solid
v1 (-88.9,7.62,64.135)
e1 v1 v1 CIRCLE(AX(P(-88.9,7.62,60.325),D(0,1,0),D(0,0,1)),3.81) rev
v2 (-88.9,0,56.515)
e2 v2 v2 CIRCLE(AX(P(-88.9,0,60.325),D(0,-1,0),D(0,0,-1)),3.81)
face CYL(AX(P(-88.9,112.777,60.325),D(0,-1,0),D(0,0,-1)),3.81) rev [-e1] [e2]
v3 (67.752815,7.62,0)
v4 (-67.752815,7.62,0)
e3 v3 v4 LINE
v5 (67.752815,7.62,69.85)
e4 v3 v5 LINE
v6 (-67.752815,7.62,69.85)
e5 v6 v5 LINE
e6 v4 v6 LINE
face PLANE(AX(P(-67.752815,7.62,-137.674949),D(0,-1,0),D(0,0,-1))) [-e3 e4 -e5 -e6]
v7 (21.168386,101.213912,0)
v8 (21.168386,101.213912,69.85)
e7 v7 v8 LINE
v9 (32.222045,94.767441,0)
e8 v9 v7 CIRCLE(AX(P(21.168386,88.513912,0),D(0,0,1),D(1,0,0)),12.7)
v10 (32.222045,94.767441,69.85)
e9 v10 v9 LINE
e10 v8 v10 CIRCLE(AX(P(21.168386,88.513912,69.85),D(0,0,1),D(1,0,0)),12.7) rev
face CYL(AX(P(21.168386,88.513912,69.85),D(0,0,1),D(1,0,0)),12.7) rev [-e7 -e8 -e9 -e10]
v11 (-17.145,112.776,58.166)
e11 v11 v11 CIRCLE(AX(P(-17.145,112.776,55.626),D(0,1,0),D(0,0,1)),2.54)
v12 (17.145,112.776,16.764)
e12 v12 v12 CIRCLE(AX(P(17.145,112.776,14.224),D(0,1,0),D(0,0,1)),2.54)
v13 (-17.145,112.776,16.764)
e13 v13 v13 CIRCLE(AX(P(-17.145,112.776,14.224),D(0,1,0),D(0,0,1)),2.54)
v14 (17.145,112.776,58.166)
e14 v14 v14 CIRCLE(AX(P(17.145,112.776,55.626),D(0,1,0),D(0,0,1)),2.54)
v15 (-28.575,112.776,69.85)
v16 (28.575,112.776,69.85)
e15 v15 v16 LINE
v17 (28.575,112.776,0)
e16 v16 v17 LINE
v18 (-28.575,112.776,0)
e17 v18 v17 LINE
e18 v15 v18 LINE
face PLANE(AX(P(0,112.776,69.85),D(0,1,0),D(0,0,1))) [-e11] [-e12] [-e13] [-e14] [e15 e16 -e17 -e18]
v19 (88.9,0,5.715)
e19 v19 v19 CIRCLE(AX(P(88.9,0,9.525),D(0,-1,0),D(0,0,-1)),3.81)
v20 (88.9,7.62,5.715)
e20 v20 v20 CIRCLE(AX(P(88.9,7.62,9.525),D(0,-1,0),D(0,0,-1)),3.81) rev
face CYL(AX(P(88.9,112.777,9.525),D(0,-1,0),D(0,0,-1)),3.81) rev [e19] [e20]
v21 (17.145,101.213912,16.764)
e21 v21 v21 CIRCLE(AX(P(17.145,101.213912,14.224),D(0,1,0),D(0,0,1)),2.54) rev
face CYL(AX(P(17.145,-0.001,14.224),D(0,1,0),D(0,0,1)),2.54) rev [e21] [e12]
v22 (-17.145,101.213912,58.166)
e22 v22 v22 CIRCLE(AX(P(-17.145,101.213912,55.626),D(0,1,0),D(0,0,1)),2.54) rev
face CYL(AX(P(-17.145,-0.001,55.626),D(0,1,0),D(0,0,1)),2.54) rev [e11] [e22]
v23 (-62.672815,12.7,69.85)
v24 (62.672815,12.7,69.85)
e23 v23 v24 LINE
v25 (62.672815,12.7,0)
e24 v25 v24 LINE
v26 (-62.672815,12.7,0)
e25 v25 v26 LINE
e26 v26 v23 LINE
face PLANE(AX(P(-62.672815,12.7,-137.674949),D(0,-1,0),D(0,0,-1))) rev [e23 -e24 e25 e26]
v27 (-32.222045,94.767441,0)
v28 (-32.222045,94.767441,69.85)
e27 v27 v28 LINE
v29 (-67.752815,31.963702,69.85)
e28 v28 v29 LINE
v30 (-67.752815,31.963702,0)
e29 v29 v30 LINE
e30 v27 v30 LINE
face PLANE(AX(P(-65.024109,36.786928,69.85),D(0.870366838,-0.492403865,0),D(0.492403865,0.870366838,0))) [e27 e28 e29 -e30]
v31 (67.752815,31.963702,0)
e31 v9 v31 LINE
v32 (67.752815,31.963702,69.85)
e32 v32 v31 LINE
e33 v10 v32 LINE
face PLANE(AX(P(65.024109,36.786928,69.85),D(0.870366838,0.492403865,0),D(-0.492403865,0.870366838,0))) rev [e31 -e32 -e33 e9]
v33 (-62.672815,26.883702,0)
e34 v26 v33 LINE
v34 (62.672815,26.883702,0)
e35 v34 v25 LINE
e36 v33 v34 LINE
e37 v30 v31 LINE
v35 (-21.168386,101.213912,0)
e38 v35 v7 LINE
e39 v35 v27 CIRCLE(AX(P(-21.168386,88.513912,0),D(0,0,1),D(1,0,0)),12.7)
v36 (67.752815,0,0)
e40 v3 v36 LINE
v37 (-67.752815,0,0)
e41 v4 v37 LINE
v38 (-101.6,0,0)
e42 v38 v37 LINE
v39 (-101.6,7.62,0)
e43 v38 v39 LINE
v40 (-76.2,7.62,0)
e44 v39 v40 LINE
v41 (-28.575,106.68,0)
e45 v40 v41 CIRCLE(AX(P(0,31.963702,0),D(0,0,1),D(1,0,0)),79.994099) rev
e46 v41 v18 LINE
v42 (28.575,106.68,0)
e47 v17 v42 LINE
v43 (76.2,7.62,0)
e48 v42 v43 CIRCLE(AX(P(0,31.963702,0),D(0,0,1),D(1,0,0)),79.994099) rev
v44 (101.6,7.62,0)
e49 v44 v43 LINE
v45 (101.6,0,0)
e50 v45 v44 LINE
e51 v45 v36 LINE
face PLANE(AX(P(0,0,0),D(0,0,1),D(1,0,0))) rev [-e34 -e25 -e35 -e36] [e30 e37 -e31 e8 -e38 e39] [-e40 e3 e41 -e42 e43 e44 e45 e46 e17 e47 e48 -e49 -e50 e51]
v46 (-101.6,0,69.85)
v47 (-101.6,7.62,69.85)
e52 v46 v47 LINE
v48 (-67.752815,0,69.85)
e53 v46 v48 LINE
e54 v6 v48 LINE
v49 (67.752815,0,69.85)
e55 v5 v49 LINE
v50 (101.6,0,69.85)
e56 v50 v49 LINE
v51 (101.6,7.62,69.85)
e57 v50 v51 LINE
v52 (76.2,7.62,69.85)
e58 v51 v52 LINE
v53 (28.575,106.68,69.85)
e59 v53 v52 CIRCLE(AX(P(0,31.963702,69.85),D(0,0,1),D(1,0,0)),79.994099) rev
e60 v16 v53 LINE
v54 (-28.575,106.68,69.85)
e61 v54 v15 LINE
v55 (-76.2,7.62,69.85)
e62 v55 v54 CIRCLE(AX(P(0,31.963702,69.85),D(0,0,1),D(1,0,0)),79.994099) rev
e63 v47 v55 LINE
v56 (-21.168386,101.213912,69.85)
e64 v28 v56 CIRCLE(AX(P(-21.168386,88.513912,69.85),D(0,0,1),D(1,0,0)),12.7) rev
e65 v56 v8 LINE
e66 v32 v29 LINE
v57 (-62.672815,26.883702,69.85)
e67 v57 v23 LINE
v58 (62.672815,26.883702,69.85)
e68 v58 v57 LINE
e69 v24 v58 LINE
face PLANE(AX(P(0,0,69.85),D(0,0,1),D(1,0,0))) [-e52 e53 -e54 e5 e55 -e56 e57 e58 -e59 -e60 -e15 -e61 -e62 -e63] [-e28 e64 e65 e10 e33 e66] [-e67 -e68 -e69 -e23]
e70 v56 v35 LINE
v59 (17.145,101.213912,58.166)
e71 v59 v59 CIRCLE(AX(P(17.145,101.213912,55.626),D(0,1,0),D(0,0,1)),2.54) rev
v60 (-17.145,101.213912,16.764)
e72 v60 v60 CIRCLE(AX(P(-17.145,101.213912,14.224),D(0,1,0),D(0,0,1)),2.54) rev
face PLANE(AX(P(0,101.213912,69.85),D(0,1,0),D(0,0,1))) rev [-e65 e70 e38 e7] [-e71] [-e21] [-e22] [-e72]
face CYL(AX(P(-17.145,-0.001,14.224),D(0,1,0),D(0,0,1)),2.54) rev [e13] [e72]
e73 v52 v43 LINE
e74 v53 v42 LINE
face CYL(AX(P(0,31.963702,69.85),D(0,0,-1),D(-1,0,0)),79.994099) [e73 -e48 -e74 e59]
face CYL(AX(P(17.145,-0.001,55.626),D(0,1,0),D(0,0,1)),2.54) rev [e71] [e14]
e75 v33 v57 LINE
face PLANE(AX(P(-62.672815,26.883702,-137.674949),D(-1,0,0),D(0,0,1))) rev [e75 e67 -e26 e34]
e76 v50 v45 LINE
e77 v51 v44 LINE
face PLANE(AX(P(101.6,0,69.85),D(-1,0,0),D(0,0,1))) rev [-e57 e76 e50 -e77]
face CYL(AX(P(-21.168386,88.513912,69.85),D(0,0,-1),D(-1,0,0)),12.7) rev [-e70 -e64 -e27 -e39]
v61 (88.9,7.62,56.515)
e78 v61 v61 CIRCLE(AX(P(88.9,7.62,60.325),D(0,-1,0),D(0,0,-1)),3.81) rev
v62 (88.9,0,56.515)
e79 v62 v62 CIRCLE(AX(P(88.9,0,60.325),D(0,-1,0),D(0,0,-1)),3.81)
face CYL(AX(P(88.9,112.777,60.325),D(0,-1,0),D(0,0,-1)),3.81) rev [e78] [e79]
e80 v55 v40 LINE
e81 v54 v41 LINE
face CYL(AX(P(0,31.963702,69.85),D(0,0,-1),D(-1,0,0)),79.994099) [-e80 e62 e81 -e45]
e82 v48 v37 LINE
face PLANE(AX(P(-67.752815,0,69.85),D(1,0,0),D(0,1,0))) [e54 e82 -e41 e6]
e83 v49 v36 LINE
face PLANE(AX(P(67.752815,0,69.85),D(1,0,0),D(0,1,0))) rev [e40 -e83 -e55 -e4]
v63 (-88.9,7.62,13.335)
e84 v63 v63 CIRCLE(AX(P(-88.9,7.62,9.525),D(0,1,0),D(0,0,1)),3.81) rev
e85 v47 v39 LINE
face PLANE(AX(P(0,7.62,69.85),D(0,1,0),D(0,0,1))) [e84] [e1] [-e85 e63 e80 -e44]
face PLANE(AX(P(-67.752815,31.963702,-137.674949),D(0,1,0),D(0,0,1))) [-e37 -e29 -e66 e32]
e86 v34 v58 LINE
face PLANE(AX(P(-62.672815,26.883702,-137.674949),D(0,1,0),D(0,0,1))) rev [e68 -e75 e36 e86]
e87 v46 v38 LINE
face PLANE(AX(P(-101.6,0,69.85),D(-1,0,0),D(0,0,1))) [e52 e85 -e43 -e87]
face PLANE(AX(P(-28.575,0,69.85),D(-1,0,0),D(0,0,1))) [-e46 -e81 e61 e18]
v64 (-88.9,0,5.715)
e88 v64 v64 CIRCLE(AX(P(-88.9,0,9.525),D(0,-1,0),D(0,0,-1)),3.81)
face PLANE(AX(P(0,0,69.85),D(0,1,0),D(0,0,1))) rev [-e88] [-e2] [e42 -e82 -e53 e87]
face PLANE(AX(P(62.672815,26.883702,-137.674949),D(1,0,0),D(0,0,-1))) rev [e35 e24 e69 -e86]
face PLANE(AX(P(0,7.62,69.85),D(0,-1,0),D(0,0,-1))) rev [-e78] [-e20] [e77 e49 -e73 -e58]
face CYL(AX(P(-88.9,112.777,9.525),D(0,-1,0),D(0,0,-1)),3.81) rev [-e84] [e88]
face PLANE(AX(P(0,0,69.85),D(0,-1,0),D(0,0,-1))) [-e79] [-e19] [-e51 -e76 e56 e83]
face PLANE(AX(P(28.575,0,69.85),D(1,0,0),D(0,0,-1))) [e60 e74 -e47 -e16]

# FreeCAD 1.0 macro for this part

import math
import FreeCAD as App
import Part
import Sketcher
from FreeCAD import Vector
Q = App.Units.Quantity


def edges_at(feature, points):
    """Names of the edges that pass closest to the given points."""
    edges = feature.Shape.Edges
    near = lambda p: min(range(len(edges)), key=lambda i: edges[i].distToShape(Part.Vertex(*p))[0])
    return sorted({f"Edge{near(p) + 1}" for p in points})

doc = App.newDocument("Part")
body = doc.addObject("PartDesign::Body", "Body")

# Sketch on XY plane
sketch1 = doc.addObject("Sketcher::SketchObject", "Sketch")
body.addObject(sketch1)
sketch1.AttachmentSupport = (doc.XY_Plane, [""])
sketch1.MapMode = "FlatFace"
sketch1.addGeometry([
    Part.LineSegment(Vector(-29, 101, 0), Vector(29, 101, 0)),  # 0
    Part.LineSegment(Vector(29, 101, 0), Vector(68, 32, 0)),  # 1
    Part.LineSegment(Vector(68, 32, 0), Vector(68, 0, 0)),  # 2
    Part.LineSegment(Vector(68, 0, 0), Vector(102, 0, 0)),  # 3
    Part.LineSegment(Vector(102, 0, 0), Vector(102, 8, 0)),  # 4
    Part.LineSegment(Vector(102, 8, 0), Vector(76, 8, 0)),  # 5
    Part.ArcOfCircle(Part.Circle(Vector(0, 32, 0), Vector(0, 0, 1), 80), math.radians(-18), math.radians(69)),  # 6
    Part.LineSegment(Vector(29, 107, 0), Vector(29, 113, 0)),  # 7
    Part.LineSegment(Vector(29, 113, 0), Vector(-29, 113, 0)),  # 8
    Part.LineSegment(Vector(-29, 113, 0), Vector(-29, 107, 0)),  # 9
    Part.ArcOfCircle(Part.Circle(Vector(0, 32, 0), Vector(0, 0, 1), 80), math.radians(111), math.radians(198)),  # 10
    Part.LineSegment(Vector(-76, 8, 0), Vector(-102, 8, 0)),  # 11
    Part.LineSegment(Vector(-102, 8, 0), Vector(-102, 0, 0)),  # 12
    Part.LineSegment(Vector(-102, 0, 0), Vector(-68, 0, 0)),  # 13
    Part.LineSegment(Vector(-68, 0, 0), Vector(-68, 32, 0)),  # 14
    Part.LineSegment(Vector(-68, 32, 0), Vector(-29, 101, 0)),  # 15
], False)
sketch1.addConstraint([
    Sketcher.Constraint("Coincident", 0, 2, 1, 1),
    Sketcher.Constraint("Coincident", 1, 2, 2, 1),
    Sketcher.Constraint("Coincident", 2, 2, 3, 1),
    Sketcher.Constraint("Coincident", 3, 2, 4, 1),
    Sketcher.Constraint("Coincident", 4, 2, 5, 1),
    Sketcher.Constraint("Coincident", 5, 2, 6, 1),
    Sketcher.Constraint("Coincident", 6, 2, 7, 1),
    Sketcher.Constraint("Coincident", 7, 2, 8, 1),
    Sketcher.Constraint("Coincident", 8, 2, 9, 1),
    Sketcher.Constraint("Coincident", 9, 2, 10, 1),
    Sketcher.Constraint("Coincident", 10, 2, 11, 1),
    Sketcher.Constraint("Coincident", 11, 2, 12, 1),
    Sketcher.Constraint("Coincident", 12, 2, 13, 1),
    Sketcher.Constraint("Coincident", 13, 2, 14, 1),
    Sketcher.Constraint("Coincident", 14, 2, 15, 1),
    Sketcher.Constraint("Coincident", 15, 2, 0, 1),
    Sketcher.Constraint("Horizontal", 0),
    Sketcher.Constraint("Vertical", 2),
    Sketcher.Constraint("Horizontal", 3),
    Sketcher.Constraint("Vertical", 4),
    Sketcher.Constraint("Horizontal", 5),
    Sketcher.Constraint("Vertical", 7),
    Sketcher.Constraint("Horizontal", 8),
    Sketcher.Constraint("Vertical", 9),
    Sketcher.Constraint("Horizontal", 11),
    Sketcher.Constraint("Vertical", 12),
    Sketcher.Constraint("Horizontal", 13),
    Sketcher.Constraint("Vertical", 14),
    Sketcher.Constraint("Coincident", 10, 3, 6, 3),
    Sketcher.Constraint("Equal", 6, 10),
    Sketcher.Constraint("Symmetric", 3, 2, 12, 2, -1, 1),
    Sketcher.Constraint("Symmetric", 6, 2, 9, 2, -2),
    Sketcher.Constraint("Symmetric", 2, 2, 13, 2, -2),
    Sketcher.Constraint("Horizontal", 10, 3, 1, 2),
    Sketcher.Constraint("Horizontal", 5, 2, 10, 2),
    Sketcher.Constraint("Horizontal", 1, 2, 14, 2),
    Sketcher.Constraint("Vertical", 0, 2, 6, 2),
    Sketcher.Constraint("Vertical", 9, 2, 15, 2),
    Sketcher.Constraint("DistanceX", 5, 2, 5, 1, Q("1 in")),
    Sketcher.Constraint("DistanceY", 4, 1, 4, 2, Q("0.3 in")),
    Sketcher.Constraint("DistanceX", -1, 1, 3, 2, Q("4 in")),
    Sketcher.Constraint("DistanceX", 0, 1, 0, 2, Q("2.25 in")),
    Sketcher.Constraint("DistanceY", 7, 1, 7, 2, Q("0.24 in")),
    Sketcher.Constraint("DistanceY", -1, 1, 6, 2, Q("4.2 in")),
    Sketcher.Constraint("DistanceX", 3, 1, 3, 2, Q("33.847185 mm")),
    Sketcher.Constraint("DistanceY", -1, 1, 0, 2, Q("101.213912 mm")),
])
pad1 = doc.addObject("PartDesign::Pad", "Pad")
body.addObject(pad1)
pad1.Profile = sketch1
pad1.Length = Q("2.75 in")

# Sketch on XY plane
sketch2 = doc.addObject("Sketcher::SketchObject", "Sketch001")
body.addObject(sketch2)
sketch2.AttachmentSupport = (doc.XY_Plane, [""])
sketch2.MapMode = "FlatFace"
sketch2.AttachmentOffset = App.Placement(Vector(0, 0, 2.75 * 25.4), App.Rotation())
sketch2.addGeometry([
    Part.LineSegment(Vector(-68, 32, 0), Vector(-68, 8, 0)),  # 0
    Part.LineSegment(Vector(-68, 8, 0), Vector(68, 8, 0)),  # 1
    Part.LineSegment(Vector(68, 8, 0), Vector(68, 32, 0)),  # 2
    Part.LineSegment(Vector(68, 32, 0), Vector(-68, 32, 0)),  # 3
    Part.LineSegment(Vector(63, 13, 0), Vector(-63, 13, 0)),  # 4
    Part.LineSegment(Vector(-63, 13, 0), Vector(-63, 27, 0)),  # 5
    Part.LineSegment(Vector(-63, 27, 0), Vector(63, 27, 0)),  # 6
    Part.LineSegment(Vector(63, 27, 0), Vector(63, 13, 0)),  # 7
], False)
sketch2.addConstraint([
    Sketcher.Constraint("Coincident", 0, 2, 1, 1),
    Sketcher.Constraint("Coincident", 1, 2, 2, 1),
    Sketcher.Constraint("Coincident", 2, 2, 3, 1),
    Sketcher.Constraint("Coincident", 3, 2, 0, 1),
    Sketcher.Constraint("Coincident", 4, 2, 5, 1),
    Sketcher.Constraint("Coincident", 5, 2, 6, 1),
    Sketcher.Constraint("Coincident", 6, 2, 7, 1),
    Sketcher.Constraint("Coincident", 7, 2, 4, 1),
    Sketcher.Constraint("Vertical", 0),
    Sketcher.Constraint("Horizontal", 1),
    Sketcher.Constraint("Vertical", 2),
    Sketcher.Constraint("Horizontal", 3),
    Sketcher.Constraint("Horizontal", 4),
    Sketcher.Constraint("Vertical", 5),
    Sketcher.Constraint("Horizontal", 6),
    Sketcher.Constraint("Vertical", 7),
    Sketcher.Constraint("DistanceY", -1, 1, 0, 2, Q("0.3 in")),
    Sketcher.Constraint("DistanceY", -1, 1, 4, 2, Q("0.5 in")),
    Sketcher.Constraint("DistanceX", 0, 2, 4, 2, Q("0.2 in")),
    Sketcher.Constraint("DistanceY", 5, 2, 3, 2, Q("0.2 in")),
    Sketcher.Constraint("DistanceX", 6, 2, 2, 2, Q("0.2 in")),
    Sketcher.Constraint("DistanceY", 0, 2, 0, 1, Q("24.343702 mm")),
    Sketcher.Constraint("DistanceX", 1, 1, 1, 2, Q("135.50563 mm")),
    Sketcher.Constraint("DistanceX", 0, 2, -1, 1, Q("67.752815 mm")),
])
pad2 = doc.addObject("PartDesign::Pad", "Pad001")
body.addObject(pad2)
pad2.Profile = sketch2
pad2.Length = Q("2.75 in")
pad2.Reversed = True

# Sketch on XZ plane
sketch3 = doc.addObject("Sketcher::SketchObject", "Sketch002")
body.addObject(sketch3)
sketch3.AttachmentSupport = (doc.XZ_Plane, [""])
sketch3.MapMode = "FlatFace"
sketch3.addGeometry(Part.Circle(Vector(-88.9, 60.3, 0), Vector(0, 0, 1), 3.8), False)
sketch3.addConstraint([
    Sketcher.Constraint("Diameter", 0, Q("0.3 in")),
    Sketcher.Constraint("DistanceX", 0, 3, -1, 1, Q("3.5 in")),
    Sketcher.Constraint("DistanceY", -1, 1, 0, 3, Q("2.375 in")),
])
pocket1 = doc.addObject("PartDesign::Pocket", "Pocket")
body.addObject(pocket1)
pocket1.Profile = sketch3
pocket1.Type = "UpToFirst"

# Sketch on XZ plane
sketch4 = doc.addObject("Sketcher::SketchObject", "Sketch003")
body.addObject(sketch4)
sketch4.AttachmentSupport = (doc.XZ_Plane, [""])
sketch4.MapMode = "FlatFace"
sketch4.addGeometry(Part.Circle(Vector(-88.9, 9.5, 0), Vector(0, 0, 1), 3.8), False)
sketch4.addConstraint([
    Sketcher.Constraint("Diameter", 0, Q("0.3 in")),
    Sketcher.Constraint("DistanceX", 0, 3, -1, 1, Q("3.5 in")),
    Sketcher.Constraint("DistanceY", -1, 1, 0, 3, Q("0.375 in")),
])
pocket2 = doc.addObject("PartDesign::Pocket", "Pocket001")
body.addObject(pocket2)
pocket2.Profile = sketch4
pocket2.Type = "UpToFirst"

# Sketch on XZ plane
sketch5 = doc.addObject("Sketcher::SketchObject", "Sketch004")
body.addObject(sketch5)
sketch5.AttachmentSupport = (doc.XZ_Plane, [""])
sketch5.MapMode = "FlatFace"
sketch5.addGeometry(Part.Circle(Vector(88.9, 9.5, 0), Vector(0, 0, 1), 3.8), False)
sketch5.addConstraint([
    Sketcher.Constraint("Diameter", 0, Q("0.3 in")),
    Sketcher.Constraint("DistanceX", -1, 1, 0, 3, Q("3.5 in")),
    Sketcher.Constraint("DistanceY", -1, 1, 0, 3, Q("0.375 in")),
])
pocket3 = doc.addObject("PartDesign::Pocket", "Pocket002")
body.addObject(pocket3)
pocket3.Profile = sketch5
pocket3.Type = "UpToFirst"

# Sketch on XZ plane
sketch6 = doc.addObject("Sketcher::SketchObject", "Sketch005")
body.addObject(sketch6)
sketch6.AttachmentSupport = (doc.XZ_Plane, [""])
sketch6.MapMode = "FlatFace"
sketch6.addGeometry(Part.Circle(Vector(88.9, 60.3, 0), Vector(0, 0, 1), 3.8), False)
sketch6.addConstraint([
    Sketcher.Constraint("Diameter", 0, Q("0.3 in")),
    Sketcher.Constraint("DistanceX", -1, 1, 0, 3, Q("3.5 in")),
    Sketcher.Constraint("DistanceY", -1, 1, 0, 3, Q("2.375 in")),
])
pocket4 = doc.addObject("PartDesign::Pocket", "Pocket003")
body.addObject(pocket4)
pocket4.Profile = sketch6
pocket4.Type = "UpToFirst"

# Sketch on XZ plane
sketch7 = doc.addObject("Sketcher::SketchObject", "Sketch006")
body.addObject(sketch7)
sketch7.AttachmentSupport = (doc.XZ_Plane, [""])
sketch7.MapMode = "FlatFace"
sketch7.AttachmentOffset = App.Placement(Vector(0, 0, -4.44 * 25.4), App.Rotation())
sketch7.addGeometry([
    Part.ArcOfCircle(Part.Circle(Vector(-17.1, 14.2, 0), Vector(0, 0, 1), 2.5), math.radians(90), math.radians(360)),
    Part.LineSegment(Vector(-17.1, 16.8, 0), Vector(-17.1, 14.2, 0)),
    Part.LineSegment(Vector(-17.1, 14.2, 0), Vector(-14.6, 14.2, 0)),
], False)
sketch7.addConstraint([
    Sketcher.Constraint("Coincident", 0, 1, 1, 1),
    Sketcher.Constraint("Coincident", 1, 2, 2, 1),
    Sketcher.Constraint("Coincident", 2, 2, 0, 2),
    Sketcher.Constraint("Vertical", 1),
    Sketcher.Constraint("Horizontal", 2),
    Sketcher.Constraint("Coincident", 1, 2, 0, 3),
    Sketcher.Constraint("Radius", 0, Q("0.1 in")),
    Sketcher.Constraint("DistanceY", -1, 1, 0, 3, Q("0.56 in")),
    Sketcher.Constraint("DistanceX", 0, 3, -1, 1, Q("0.675 in")),
])
pocket5 = doc.addObject("PartDesign::Pocket", "Pocket004")
body.addObject(pocket5)
pocket5.Profile = sketch7
pocket5.Type = "UpToFirst"
pocket5.Reversed = True

# Sketch on XZ plane
sketch8 = doc.addObject("Sketcher::SketchObject", "Sketch007")
body.addObject(sketch8)
sketch8.AttachmentSupport = (doc.XZ_Plane, [""])
sketch8.MapMode = "FlatFace"
sketch8.AttachmentOffset = App.Placement(Vector(0, 0, -4.44 * 25.4), App.Rotation())
sketch8.addGeometry([
    Part.LineSegment(Vector(-17.1, 14.2, 0), Vector(-17.1, 16.8, 0)),
    Part.ArcOfCircle(Part.Circle(Vector(-17.1, 14.2, 0), Vector(0, 0, 1), 2.5), math.radians(0), math.radians(90)),
    Part.LineSegment(Vector(-14.6, 14.2, 0), Vector(-17.1, 14.2, 0)),
], False)
sketch8.addConstraint([
    Sketcher.Constraint("Coincident", 0, 2, 1, 2),
    Sketcher.Constraint("Coincident", 1, 1, 2, 1),
    Sketcher.Constraint("Coincident", 2, 2, 0, 1),
    Sketcher.Constraint("Vertical", 0),
    Sketcher.Constraint("Horizontal", 2),
    Sketcher.Constraint("Coincident", 2, 2, 1, 3),
    Sketcher.Constraint("Radius", 1, Q("0.1 in")),
    Sketcher.Constraint("DistanceY", -1, 1, 1, 3, Q("0.56 in")),
    Sketcher.Constraint("DistanceX", 1, 3, -1, 1, Q("0.675 in")),
])
pocket6 = doc.addObject("PartDesign::Pocket", "Pocket005")
body.addObject(pocket6)
pocket6.Profile = sketch8
pocket6.Type = "UpToFirst"
pocket6.Reversed = True

# Sketch on XZ plane
sketch9 = doc.addObject("Sketcher::SketchObject", "Sketch008")
body.addObject(sketch9)
sketch9.AttachmentSupport = (doc.XZ_Plane, [""])
sketch9.MapMode = "FlatFace"
sketch9.AttachmentOffset = App.Placement(Vector(0, 0, -4.44 * 25.4), App.Rotation())
sketch9.addGeometry([
    Part.ArcOfCircle(Part.Circle(Vector(17.1, 14.2, 0), Vector(0, 0, 1), 2.5), math.radians(90), math.radians(180)),
    Part.LineSegment(Vector(17.1, 16.8, 0), Vector(17.1, 14.2, 0)),
    Part.LineSegment(Vector(17.1, 14.2, 0), Vector(14.6, 14.2, 0)),
], False)
sketch9.addConstraint([
    Sketcher.Constraint("Coincident", 0, 1, 1, 1),
    Sketcher.Constraint("Coincident", 1, 2, 2, 1),
    Sketcher.Constraint("Coincident", 2, 2, 0, 2),
    Sketcher.Constraint("Vertical", 1),
    Sketcher.Constraint("Horizontal", 2),
    Sketcher.Constraint("Coincident", 1, 2, 0, 3),
    Sketcher.Constraint("Radius", 0, Q("0.1 in")),
    Sketcher.Constraint("DistanceY", -1, 1, 0, 3, Q("0.56 in")),
    Sketcher.Constraint("DistanceX", -1, 1, 0, 3, Q("0.675 in")),
])
pocket7 = doc.addObject("PartDesign::Pocket", "Pocket006")
body.addObject(pocket7)
pocket7.Profile = sketch9
pocket7.Type = "UpToFirst"
pocket7.Reversed = True

# Sketch on XZ plane
sketch10 = doc.addObject("Sketcher::SketchObject", "Sketch009")
body.addObject(sketch10)
sketch10.AttachmentSupport = (doc.XZ_Plane, [""])
sketch10.MapMode = "FlatFace"
sketch10.AttachmentOffset = App.Placement(Vector(0, 0, -4.44 * 25.4), App.Rotation())
sketch10.addGeometry([
    Part.LineSegment(Vector(17.1, 14.2, 0), Vector(17.1, 16.8, 0)),
    Part.ArcOfCircle(Part.Circle(Vector(17.1, 14.2, 0), Vector(0, 0, 1), 2.5), math.radians(0), math.radians(90)),
    Part.ArcOfCircle(Part.Circle(Vector(17.1, 14.2, 0), Vector(0, 0, 1), 2.5), math.radians(180), math.radians(360)),
    Part.LineSegment(Vector(14.6, 14.2, 0), Vector(17.1, 14.2, 0)),
], False)
sketch10.addConstraint([
    Sketcher.Constraint("Coincident", 0, 2, 1, 2),
    Sketcher.Constraint("Tangent", 1, 1, 2, 2),
    Sketcher.Constraint("Coincident", 2, 1, 3, 1),
    Sketcher.Constraint("Coincident", 3, 2, 0, 1),
    Sketcher.Constraint("Vertical", 0),
    Sketcher.Constraint("Horizontal", 3),
    Sketcher.Constraint("Coincident", 3, 2, 1, 3),
    Sketcher.Constraint("Equal", 1, 2),
    Sketcher.Constraint("Horizontal", 2, 3, 1, 1),
    Sketcher.Constraint("Radius", 1, Q("0.1 in")),
    Sketcher.Constraint("DistanceY", -1, 1, 1, 3, Q("0.56 in")),
    Sketcher.Constraint("DistanceX", -1, 1, 1, 3, Q("0.675 in")),
])
pocket8 = doc.addObject("PartDesign::Pocket", "Pocket007")
body.addObject(pocket8)
pocket8.Profile = sketch10
pocket8.Type = "UpToFirst"
pocket8.Reversed = True

# Sketch on XZ plane
sketch11 = doc.addObject("Sketcher::SketchObject", "Sketch010")
body.addObject(sketch11)
sketch11.AttachmentSupport = (doc.XZ_Plane, [""])
sketch11.MapMode = "FlatFace"
sketch11.AttachmentOffset = App.Placement(Vector(0, 0, -4.44 * 25.4), App.Rotation())
sketch11.addGeometry([
    Part.ArcOfCircle(Part.Circle(Vector(17.1, 55.6, 0), Vector(0, 0, 1), 2.5), math.radians(-180), math.radians(-90)),
    Part.LineSegment(Vector(14.6, 55.6, 0), Vector(17.1, 55.6, 0)),
    Part.LineSegment(Vector(17.1, 55.6, 0), Vector(17.1, 53.1, 0)),
], False)
sketch11.addConstraint([
    Sketcher.Constraint("Coincident", 0, 1, 1, 1),
    Sketcher.Constraint("Coincident", 1, 2, 2, 1),
    Sketcher.Constraint("Coincident", 2, 2, 0, 2),
    Sketcher.Constraint("Horizontal", 1),
    Sketcher.Constraint("Vertical", 2),
    Sketcher.Constraint("Coincident", 1, 2, 0, 3),
    Sketcher.Constraint("Radius", 0, Q("0.1 in")),
    Sketcher.Constraint("DistanceY", -1, 1, 0, 3, Q("2.19 in")),
    Sketcher.Constraint("DistanceX", -1, 1, 0, 3, Q("0.675 in")),
])
pocket9 = doc.addObject("PartDesign::Pocket", "Pocket008")
body.addObject(pocket9)
pocket9.Profile = sketch11
pocket9.Type = "UpToFirst"
pocket9.Reversed = True

# Sketch on XZ plane
sketch12 = doc.addObject("Sketcher::SketchObject", "Sketch011")
body.addObject(sketch12)
sketch12.AttachmentSupport = (doc.XZ_Plane, [""])
sketch12.MapMode = "FlatFace"
sketch12.AttachmentOffset = App.Placement(Vector(0, 0, -4.44 * 25.4), App.Rotation())
sketch12.addGeometry([
    Part.LineSegment(Vector(17.1, 55.6, 0), Vector(14.6, 55.6, 0)),
    Part.ArcOfCircle(Part.Circle(Vector(17.1, 55.6, 0), Vector(0, 0, 1), 2.5), math.radians(0), math.radians(180)),
    Part.ArcOfCircle(Part.Circle(Vector(17.1, 55.6, 0), Vector(0, 0, 1), 2.5), math.radians(-90), math.radians(0)),
    Part.LineSegment(Vector(17.1, 53.1, 0), Vector(17.1, 55.6, 0)),
], False)
sketch12.addConstraint([
    Sketcher.Constraint("Coincident", 0, 2, 1, 2),
    Sketcher.Constraint("Tangent", 1, 1, 2, 2),
    Sketcher.Constraint("Coincident", 2, 1, 3, 1),
    Sketcher.Constraint("Coincident", 3, 2, 0, 1),
    Sketcher.Constraint("Horizontal", 0),
    Sketcher.Constraint("Vertical", 3),
    Sketcher.Constraint("Coincident", 3, 2, 1, 3),
    Sketcher.Constraint("Equal", 1, 2),
    Sketcher.Constraint("Horizontal", 0, 2, 1, 1),
    Sketcher.Constraint("Radius", 1, Q("0.1 in")),
    Sketcher.Constraint("DistanceY", -1, 1, 1, 3, Q("2.19 in")),
    Sketcher.Constraint("DistanceX", -1, 1, 1, 3, Q("0.675 in")),
])
pocket10 = doc.addObject("PartDesign::Pocket", "Pocket009")
body.addObject(pocket10)
pocket10.Profile = sketch12
pocket10.Type = "UpToFirst"
pocket10.Reversed = True

# Sketch on XZ plane
sketch13 = doc.addObject("Sketcher::SketchObject", "Sketch012")
body.addObject(sketch13)
sketch13.AttachmentSupport = (doc.XZ_Plane, [""])
sketch13.MapMode = "FlatFace"
sketch13.AttachmentOffset = App.Placement(Vector(0, 0, -4.44 * 25.4), App.Rotation())
sketch13.addGeometry([
    Part.ArcOfCircle(Part.Circle(Vector(-17.1, 55.6, 0), Vector(0, 0, 1), 2.5), math.radians(0), math.radians(270)),
    Part.LineSegment(Vector(-14.6, 55.6, 0), Vector(-17.1, 55.6, 0)),
    Part.LineSegment(Vector(-17.1, 55.6, 0), Vector(-17.1, 53.1, 0)),
], False)
sketch13.addConstraint([
    Sketcher.Constraint("Coincident", 0, 1, 1, 1),
    Sketcher.Constraint("Coincident", 1, 2, 2, 1),
    Sketcher.Constraint("Coincident", 2, 2, 0, 2),
    Sketcher.Constraint("Horizontal", 1),
    Sketcher.Constraint("Vertical", 2),
    Sketcher.Constraint("Coincident", 1, 2, 0, 3),
    Sketcher.Constraint("Radius", 0, Q("0.1 in")),
    Sketcher.Constraint("DistanceY", -1, 1, 0, 3, Q("2.19 in")),
    Sketcher.Constraint("DistanceX", 0, 3, -1, 1, Q("0.675 in")),
])
pocket11 = doc.addObject("PartDesign::Pocket", "Pocket010")
body.addObject(pocket11)
pocket11.Profile = sketch13
pocket11.Type = "UpToFirst"
pocket11.Reversed = True

# Sketch on XZ plane
sketch14 = doc.addObject("Sketcher::SketchObject", "Sketch013")
body.addObject(sketch14)
sketch14.AttachmentSupport = (doc.XZ_Plane, [""])
sketch14.MapMode = "FlatFace"
sketch14.AttachmentOffset = App.Placement(Vector(0, 0, -4.44 * 25.4), App.Rotation())
sketch14.addGeometry([
    Part.LineSegment(Vector(-17.1, 55.6, 0), Vector(-14.6, 55.6, 0)),
    Part.ArcOfCircle(Part.Circle(Vector(-17.1, 55.6, 0), Vector(0, 0, 1), 2.5), math.radians(-90), math.radians(0)),
    Part.LineSegment(Vector(-17.1, 53.1, 0), Vector(-17.1, 55.6, 0)),
], False)
sketch14.addConstraint([
    Sketcher.Constraint("Coincident", 0, 2, 1, 2),
    Sketcher.Constraint("Coincident", 1, 1, 2, 1),
    Sketcher.Constraint("Coincident", 2, 2, 0, 1),
    Sketcher.Constraint("Horizontal", 0),
    Sketcher.Constraint("Vertical", 2),
    Sketcher.Constraint("Coincident", 2, 2, 1, 3),
    Sketcher.Constraint("Radius", 1, Q("0.1 in")),
    Sketcher.Constraint("DistanceY", -1, 1, 1, 3, Q("2.19 in")),
    Sketcher.Constraint("DistanceX", 1, 3, -1, 1, Q("0.675 in")),
])
pocket12 = doc.addObject("PartDesign::Pocket", "Pocket011")
body.addObject(pocket12)
pocket12.Profile = sketch14
pocket12.Type = "UpToFirst"
pocket12.Reversed = True

# Sketch on XZ plane
sketch15 = doc.addObject("Sketcher::SketchObject", "Sketch014")
body.addObject(sketch15)
sketch15.AttachmentSupport = (doc.XZ_Plane, [""])
sketch15.MapMode = "FlatFace"
sketch15.AttachmentOffset = App.Placement(Vector(0, 0, -4.44 * 25.4), App.Rotation())
sketch15.addGeometry([
    Part.ArcOfCircle(Part.Circle(Vector(-17.1, 55.6, 0), Vector(0, 0, 1), 2.5), math.radians(0), math.radians(270)),
    Part.LineSegment(Vector(-14.6, 55.6, 0), Vector(-17.1, 55.6, 0)),
    Part.LineSegment(Vector(-17.1, 55.6, 0), Vector(-17.1, 53.1, 0)),
], False)
sketch15.addConstraint([
    Sketcher.Constraint("Coincident", 0, 1, 1, 1),
    Sketcher.Constraint("Coincident", 1, 2, 2, 1),
    Sketcher.Constraint("Coincident", 2, 2, 0, 2),
    Sketcher.Constraint("Horizontal", 1),
    Sketcher.Constraint("Vertical", 2),
    Sketcher.Constraint("Coincident", 1, 2, 0, 3),
    Sketcher.Constraint("Radius", 0, Q("0.1 in")),
    Sketcher.Constraint("DistanceY", -1, 1, 0, 3, Q("2.19 in")),
    Sketcher.Constraint("DistanceX", 0, 3, -1, 1, Q("0.675 in")),
])
pocket13 = doc.addObject("PartDesign::Pocket", "Pocket012")
body.addObject(pocket13)
pocket13.Profile = sketch15
pocket13.Type = "UpToFirst"
pocket13.Reversed = True

# Sketch on XZ plane
sketch16 = doc.addObject("Sketcher::SketchObject", "Sketch015")
body.addObject(sketch16)
sketch16.AttachmentSupport = (doc.XZ_Plane, [""])
sketch16.MapMode = "FlatFace"
sketch16.AttachmentOffset = App.Placement(Vector(0, 0, -4.44 * 25.4), App.Rotation())
sketch16.addGeometry([
    Part.LineSegment(Vector(-17.1, 55.6, 0), Vector(-14.6, 55.6, 0)),
    Part.ArcOfCircle(Part.Circle(Vector(-17.1, 55.6, 0), Vector(0, 0, 1), 2.5), math.radians(-90), math.radians(0)),
    Part.LineSegment(Vector(-17.1, 53.1, 0), Vector(-17.1, 55.6, 0)),
], False)
sketch16.addConstraint([
    Sketcher.Constraint("Coincident", 0, 2, 1, 2),
    Sketcher.Constraint("Coincident", 1, 1, 2, 1),
    Sketcher.Constraint("Coincident", 2, 2, 0, 1),
    Sketcher.Constraint("Horizontal", 0),
    Sketcher.Constraint("Vertical", 2),
    Sketcher.Constraint("Coincident", 2, 2, 1, 3),
    Sketcher.Constraint("Radius", 1, Q("0.1 in")),
    Sketcher.Constraint("DistanceY", -1, 1, 1, 3, Q("2.19 in")),
    Sketcher.Constraint("DistanceX", 1, 3, -1, 1, Q("0.675 in")),
])
pocket14 = doc.addObject("PartDesign::Pocket", "Pocket013")
body.addObject(pocket14)
pocket14.Profile = sketch16
pocket14.Type = "UpToFirst"
pocket14.Reversed = True

# Sketch on XZ plane
sketch17 = doc.addObject("Sketcher::SketchObject", "Sketch016")
body.addObject(sketch17)
sketch17.AttachmentSupport = (doc.XZ_Plane, [""])
sketch17.MapMode = "FlatFace"
sketch17.AttachmentOffset = App.Placement(Vector(0, 0, -4.44 * 25.4), App.Rotation())
sketch17.addGeometry([
    Part.ArcOfCircle(Part.Circle(Vector(-17.1, 14.2, 0), Vector(0, 0, 1), 2.5), math.radians(90), math.radians(360)),
    Part.LineSegment(Vector(-17.1, 16.8, 0), Vector(-17.1, 14.2, 0)),
    Part.LineSegment(Vector(-17.1, 14.2, 0), Vector(-14.6, 14.2, 0)),
], False)
sketch17.addConstraint([
    Sketcher.Constraint("Coincident", 0, 1, 1, 1),
    Sketcher.Constraint("Coincident", 1, 2, 2, 1),
    Sketcher.Constraint("Coincident", 2, 2, 0, 2),
    Sketcher.Constraint("Vertical", 1),
    Sketcher.Constraint("Horizontal", 2),
    Sketcher.Constraint("Coincident", 1, 2, 0, 3),
    Sketcher.Constraint("Radius", 0, Q("0.1 in")),
    Sketcher.Constraint("DistanceY", -1, 1, 0, 3, Q("0.56 in")),
    Sketcher.Constraint("DistanceX", 0, 3, -1, 1, Q("0.675 in")),
])
pocket15 = doc.addObject("PartDesign::Pocket", "Pocket014")
body.addObject(pocket15)
pocket15.Profile = sketch17
pocket15.Type = "UpToFirst"
pocket15.Reversed = True

# Sketch on XZ plane
sketch18 = doc.addObject("Sketcher::SketchObject", "Sketch017")
body.addObject(sketch18)
sketch18.AttachmentSupport = (doc.XZ_Plane, [""])
sketch18.MapMode = "FlatFace"
sketch18.AttachmentOffset = App.Placement(Vector(0, 0, -4.44 * 25.4), App.Rotation())
sketch18.addGeometry([
    Part.LineSegment(Vector(-17.1, 14.2, 0), Vector(-17.1, 16.8, 0)),
    Part.ArcOfCircle(Part.Circle(Vector(-17.1, 14.2, 0), Vector(0, 0, 1), 2.5), math.radians(0), math.radians(90)),
    Part.LineSegment(Vector(-14.6, 14.2, 0), Vector(-17.1, 14.2, 0)),
], False)
sketch18.addConstraint([
    Sketcher.Constraint("Coincident", 0, 2, 1, 2),
    Sketcher.Constraint("Coincident", 1, 1, 2, 1),
    Sketcher.Constraint("Coincident", 2, 2, 0, 1),
    Sketcher.Constraint("Vertical", 0),
    Sketcher.Constraint("Horizontal", 2),
    Sketcher.Constraint("Coincident", 2, 2, 1, 3),
    Sketcher.Constraint("Radius", 1, Q("0.1 in")),
    Sketcher.Constraint("DistanceY", -1, 1, 1, 3, Q("0.56 in")),
    Sketcher.Constraint("DistanceX", 1, 3, -1, 1, Q("0.675 in")),
])
pocket16 = doc.addObject("PartDesign::Pocket", "Pocket015")
body.addObject(pocket16)
pocket16.Profile = sketch18
pocket16.Type = "UpToFirst"
pocket16.Reversed = True

# Sketch on XZ plane
sketch19 = doc.addObject("Sketcher::SketchObject", "Sketch018")
body.addObject(sketch19)
sketch19.AttachmentSupport = (doc.XZ_Plane, [""])
sketch19.MapMode = "FlatFace"
sketch19.AttachmentOffset = App.Placement(Vector(0, 0, -4.44 * 25.4), App.Rotation())
sketch19.addGeometry([
    Part.ArcOfCircle(Part.Circle(Vector(17.1, 14.2, 0), Vector(0, 0, 1), 2.5), math.radians(90), math.radians(180)),
    Part.LineSegment(Vector(17.1, 16.8, 0), Vector(17.1, 14.2, 0)),
    Part.LineSegment(Vector(17.1, 14.2, 0), Vector(14.6, 14.2, 0)),
], False)
sketch19.addConstraint([
    Sketcher.Constraint("Coincident", 0, 1, 1, 1),
    Sketcher.Constraint("Coincident", 1, 2, 2, 1),
    Sketcher.Constraint("Coincident", 2, 2, 0, 2),
    Sketcher.Constraint("Vertical", 1),
    Sketcher.Constraint("Horizontal", 2),
    Sketcher.Constraint("Coincident", 1, 2, 0, 3),
    Sketcher.Constraint("Radius", 0, Q("0.1 in")),
    Sketcher.Constraint("DistanceY", -1, 1, 0, 3, Q("0.56 in")),
    Sketcher.Constraint("DistanceX", -1, 1, 0, 3, Q("0.675 in")),
])
pocket17 = doc.addObject("PartDesign::Pocket", "Pocket016")
body.addObject(pocket17)
pocket17.Profile = sketch19
pocket17.Type = "UpToFirst"
pocket17.Reversed = True

# Sketch on XZ plane
sketch20 = doc.addObject("Sketcher::SketchObject", "Sketch019")
body.addObject(sketch20)
sketch20.AttachmentSupport = (doc.XZ_Plane, [""])
sketch20.MapMode = "FlatFace"
sketch20.AttachmentOffset = App.Placement(Vector(0, 0, -4.44 * 25.4), App.Rotation())
sketch20.addGeometry([
    Part.LineSegment(Vector(17.1, 14.2, 0), Vector(17.1, 16.8, 0)),
    Part.ArcOfCircle(Part.Circle(Vector(17.1, 14.2, 0), Vector(0, 0, 1), 2.5), math.radians(0), math.radians(90)),
    Part.ArcOfCircle(Part.Circle(Vector(17.1, 14.2, 0), Vector(0, 0, 1), 2.5), math.radians(180), math.radians(360)),
    Part.LineSegment(Vector(14.6, 14.2, 0), Vector(17.1, 14.2, 0)),
], False)
sketch20.addConstraint([
    Sketcher.Constraint("Coincident", 0, 2, 1, 2),
    Sketcher.Constraint("Tangent", 1, 1, 2, 2),
    Sketcher.Constraint("Coincident", 2, 1, 3, 1),
    Sketcher.Constraint("Coincident", 3, 2, 0, 1),
    Sketcher.Constraint("Vertical", 0),
    Sketcher.Constraint("Horizontal", 3),
    Sketcher.Constraint("Coincident", 3, 2, 1, 3),
    Sketcher.Constraint("Equal", 1, 2),
    Sketcher.Constraint("Horizontal", 2, 3, 1, 1),
    Sketcher.Constraint("Radius", 1, Q("0.1 in")),
    Sketcher.Constraint("DistanceY", -1, 1, 1, 3, Q("0.56 in")),
    Sketcher.Constraint("DistanceX", -1, 1, 1, 3, Q("0.675 in")),
])
pocket18 = doc.addObject("PartDesign::Pocket", "Pocket017")
body.addObject(pocket18)
pocket18.Profile = sketch20
pocket18.Type = "UpToFirst"
pocket18.Reversed = True

# Sketch on XZ plane
sketch21 = doc.addObject("Sketcher::SketchObject", "Sketch020")
body.addObject(sketch21)
sketch21.AttachmentSupport = (doc.XZ_Plane, [""])
sketch21.MapMode = "FlatFace"
sketch21.AttachmentOffset = App.Placement(Vector(0, 0, -4.44 * 25.4), App.Rotation())
sketch21.addGeometry([
    Part.ArcOfCircle(Part.Circle(Vector(17.1, 55.6, 0), Vector(0, 0, 1), 2.5), math.radians(-180), math.radians(-90)),
    Part.LineSegment(Vector(14.6, 55.6, 0), Vector(17.1, 55.6, 0)),
    Part.LineSegment(Vector(17.1, 55.6, 0), Vector(17.1, 53.1, 0)),
], False)
sketch21.addConstraint([
    Sketcher.Constraint("Coincident", 0, 1, 1, 1),
    Sketcher.Constraint("Coincident", 1, 2, 2, 1),
    Sketcher.Constraint("Coincident", 2, 2, 0, 2),
    Sketcher.Constraint("Horizontal", 1),
    Sketcher.Constraint("Vertical", 2),
    Sketcher.Constraint("Coincident", 1, 2, 0, 3),
    Sketcher.Constraint("Radius", 0, Q("0.1 in")),
    Sketcher.Constraint("DistanceY", -1, 1, 0, 3, Q("2.19 in")),
    Sketcher.Constraint("DistanceX", -1, 1, 0, 3, Q("0.675 in")),
])
pocket19 = doc.addObject("PartDesign::Pocket", "Pocket018")
body.addObject(pocket19)
pocket19.Profile = sketch21
pocket19.Type = "UpToFirst"
pocket19.Reversed = True

# Sketch on XZ plane
sketch22 = doc.addObject("Sketcher::SketchObject", "Sketch021")
body.addObject(sketch22)
sketch22.AttachmentSupport = (doc.XZ_Plane, [""])
sketch22.MapMode = "FlatFace"
sketch22.AttachmentOffset = App.Placement(Vector(0, 0, -4.44 * 25.4), App.Rotation())
sketch22.addGeometry([
    Part.LineSegment(Vector(17.1, 55.6, 0), Vector(14.6, 55.6, 0)),
    Part.ArcOfCircle(Part.Circle(Vector(17.1, 55.6, 0), Vector(0, 0, 1), 2.5), math.radians(0), math.radians(180)),
    Part.ArcOfCircle(Part.Circle(Vector(17.1, 55.6, 0), Vector(0, 0, 1), 2.5), math.radians(-90), math.radians(0)),
    Part.LineSegment(Vector(17.1, 53.1, 0), Vector(17.1, 55.6, 0)),
], False)
sketch22.addConstraint([
    Sketcher.Constraint("Coincident", 0, 2, 1, 2),
    Sketcher.Constraint("Tangent", 1, 1, 2, 2),
    Sketcher.Constraint("Coincident", 2, 1, 3, 1),
    Sketcher.Constraint("Coincident", 3, 2, 0, 1),
    Sketcher.Constraint("Horizontal", 0),
    Sketcher.Constraint("Vertical", 3),
    Sketcher.Constraint("Coincident", 3, 2, 1, 3),
    Sketcher.Constraint("Equal", 1, 2),
    Sketcher.Constraint("Horizontal", 0, 2, 1, 1),
    Sketcher.Constraint("Radius", 1, Q("0.1 in")),
    Sketcher.Constraint("DistanceY", -1, 1, 1, 3, Q("2.19 in")),
    Sketcher.Constraint("DistanceX", -1, 1, 1, 3, Q("0.675 in")),
])
pocket20 = doc.addObject("PartDesign::Pocket", "Pocket019")
body.addObject(pocket20)
pocket20.Profile = sketch22
pocket20.Type = "UpToFirst"
pocket20.Reversed = True
doc.recompute()

fillet = doc.addObject("PartDesign::Fillet", "Fillet")
body.addObject(fillet)
fillet.Base = (pocket20, edges_at(pocket20, [(28.575, 101.214, 34.925), (-28.575, 101.214, 34.925)]))
fillet.Radius = Q("0.5 in")

doc.recompute()
